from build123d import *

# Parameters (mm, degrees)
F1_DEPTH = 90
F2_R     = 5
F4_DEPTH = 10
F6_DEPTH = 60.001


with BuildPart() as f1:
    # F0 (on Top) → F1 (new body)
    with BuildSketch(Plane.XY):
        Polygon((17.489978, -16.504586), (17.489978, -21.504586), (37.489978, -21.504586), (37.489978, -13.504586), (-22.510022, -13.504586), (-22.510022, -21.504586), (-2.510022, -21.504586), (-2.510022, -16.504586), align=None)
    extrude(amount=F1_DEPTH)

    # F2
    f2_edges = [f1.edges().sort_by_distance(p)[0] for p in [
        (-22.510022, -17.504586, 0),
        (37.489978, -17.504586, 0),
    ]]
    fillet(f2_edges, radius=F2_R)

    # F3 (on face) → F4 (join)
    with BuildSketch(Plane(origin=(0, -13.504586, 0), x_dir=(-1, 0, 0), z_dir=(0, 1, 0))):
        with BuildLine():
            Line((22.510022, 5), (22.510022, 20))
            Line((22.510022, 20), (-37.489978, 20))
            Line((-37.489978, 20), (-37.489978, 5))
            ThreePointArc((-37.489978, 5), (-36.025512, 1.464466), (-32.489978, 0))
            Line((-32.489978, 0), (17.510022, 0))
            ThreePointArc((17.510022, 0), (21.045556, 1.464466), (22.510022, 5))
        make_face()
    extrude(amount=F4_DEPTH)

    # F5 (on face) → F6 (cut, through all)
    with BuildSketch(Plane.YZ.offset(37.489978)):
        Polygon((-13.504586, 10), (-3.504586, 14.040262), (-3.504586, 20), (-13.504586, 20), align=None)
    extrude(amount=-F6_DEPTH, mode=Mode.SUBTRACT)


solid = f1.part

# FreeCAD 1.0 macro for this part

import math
import FreeCAD as App
import Part
import Sketcher
Q = App.Units.Quantity


def edges_at(feature, points):
    """Names of the edges that pass closest to the given points."""
    edges = feature.Shape.Edges
    near = lambda p: min(range(len(edges)), key=lambda i: edges[i].distToShape(Part.Vertex(*p))[0])
    return sorted({f"Edge{near(p) + 1}" for p in points})


def add_polygon(sketch, points):
    """Adds a closed chain of lines whose ends are joined by coincident constraints."""
    first, n = sketch.GeometryCount, len(points)
    for a, b in zip(points, points[1:] + points[:1]):
        sketch.addGeometry(Part.LineSegment(App.Vector(*a, 0), App.Vector(*b, 0)), False)
    for i in range(n):
        sketch.addConstraint(Sketcher.Constraint("Coincident", first + i, 2, first + (i + 1) % n, 1))

doc = App.newDocument("Part")
body = doc.addObject("PartDesign::Body", "Body")

# Sketch on XY plane
sketch1 = body.newObject("Sketcher::SketchObject", "Sketch")
sketch1.AttachmentSupport = (doc.getObject("XY_Plane"), [""])
sketch1.MapMode = "FlatFace"
add_polygon(sketch1, [(17, -17), (17, -22), (37, -22), (37, -14), (-23, -14), (-23, -22), (-3, -22), (-3, -17)])  # lines 0-7
sketch1.addConstraint([
    Sketcher.Constraint("Vertical", 0),
    Sketcher.Constraint("Horizontal", 1),
    Sketcher.Constraint("Vertical", 2),
    Sketcher.Constraint("Horizontal", 3),
    Sketcher.Constraint("Vertical", 4),
    Sketcher.Constraint("Horizontal", 5),
    Sketcher.Constraint("Vertical", 6),
    Sketcher.Constraint("Horizontal", 7),
    Sketcher.Constraint("Horizontal", 1, 2, 4, 2),
    Sketcher.Constraint("Equal", 1, 5),
    Sketcher.Constraint("Equal", 5, 7),
    Sketcher.Constraint("DistanceX", 1, 1, 1, 2, Q("20 mm")),
    Sketcher.Constraint("DistanceY", 0, 2, 0, 1, Q("5 mm")),
    Sketcher.Constraint("DistanceY", 2, 1, 2, 2, Q("8 mm")),
    Sketcher.Constraint("DistanceX", -1, 1, 0, 2, Q("17.489978 mm")),
    Sketcher.Constraint("DistanceY", 0, 2, -1, 1, Q("21.504586 mm")),
])
pad1 = body.newObject("PartDesign::Pad", "Pad")
pad1.Profile = sketch1
pad1.Length = 90
doc.recompute()

fillet = body.newObject("PartDesign::Fillet", "Fillet")
fillet.Base = (pad1, edges_at(pad1, [(-22.51, -17.505, 0), (37.49, -17.505, 0)]))
fillet.Radius = 5

# Sketch on XZ plane
sketch2 = body.newObject("Sketcher::SketchObject", "Sketch001")
sketch2.AttachmentSupport = (doc.getObject("XZ_Plane"), [""])
sketch2.MapMode = "FlatFace"
sketch2.AttachmentOffset = App.Placement(App.Vector(0, 0, 13.504586), App.Rotation())
sketch2.addGeometry([
    Part.LineSegment(App.Vector(-22.5, 5, 0), App.Vector(-22.5, 20, 0)),  # 0
    Part.LineSegment(App.Vector(-22.5, 20, 0), App.Vector(37.5, 20, 0)),  # 1
    Part.LineSegment(App.Vector(37.5, 20, 0), App.Vector(37.5, 5, 0)),  # 2
    Part.ArcOfCircle(Part.Circle(App.Vector(32.5, 5, 0), App.Vector(0, 0, 1), 5), math.radians(-90), math.radians(0)),  # 3
    Part.LineSegment(App.Vector(32.5, 0, 0), App.Vector(-17.5, 0, 0)),  # 4
    Part.ArcOfCircle(Part.Circle(App.Vector(-17.5, 5, 0), App.Vector(0, 0, 1), 5), math.radians(180), math.radians(270)),  # 5
], False)
sketch2.addConstraint([
    Sketcher.Constraint("Coincident", 0, 2, 1, 1),
    Sketcher.Constraint("Coincident", 1, 2, 2, 1),
    Sketcher.Constraint("Tangent", 2, 2, 3, 2),
    Sketcher.Constraint("Tangent", 3, 1, 4, 1),
    Sketcher.Constraint("Tangent", 4, 2, 5, 2),
    Sketcher.Constraint("Tangent", 5, 1, 0, 1),
    Sketcher.Constraint("Vertical", 0),
    Sketcher.Constraint("Horizontal", 1),
    Sketcher.Constraint("Vertical", 2),
    Sketcher.Constraint("Horizontal", 4),
    Sketcher.Constraint("Equal", 3, 5),
    Sketcher.Constraint("PointOnObject", 3, 1, -1),
    Sketcher.Constraint("Radius", 3, Q("5 mm")),
    Sketcher.Constraint("DistanceX", 1, 1, 1, 2, Q("60 mm")),
    Sketcher.Constraint("DistanceY", 0, 1, 0, 2, Q("15 mm")),
    Sketcher.Constraint("DistanceX", -1, 1, 3, 3, Q("32.489978 mm")),
])
pad2 = body.newObject("PartDesign::Pad", "Pad001")
pad2.Profile = sketch2
pad2.Length = 10
pad2.Reversed = True

# Sketch on YZ plane
sketch3 = body.newObject("Sketcher::SketchObject", "Sketch002")
sketch3.AttachmentSupport = (doc.getObject("YZ_Plane"), [""])
sketch3.MapMode = "FlatFace"
sketch3.AttachmentOffset = App.Placement(App.Vector(0, 0, 37.489978), App.Rotation())
add_polygon(sketch3, [(-14, 10), (-4, 14), (-4, 20), (-14, 20)])  # lines 0-3
sketch3.addConstraint([
    Sketcher.Constraint("Vertical", 1),
    Sketcher.Constraint("Horizontal", 2),
    Sketcher.Constraint("Vertical", 3),
    Sketcher.Constraint("Equal", 2, 3),
    Sketcher.Constraint("DistanceX", 2, 2, 2, 1, Q("10 mm")),
    Sketcher.Constraint("Angle", 0, Q("21.999999 deg")),
    Sketcher.Constraint("DistanceY", -1, 1, 1, 2, Q("20 mm")),
    Sketcher.Constraint("DistanceX", 0, 2, -1, 1, Q("3.504586 mm")),
])
pocket1 = body.newObject("PartDesign::Pocket", "Pocket")
pocket1.Profile = sketch3
pocket1.Type = "ThroughAll"

doc.recompute()
